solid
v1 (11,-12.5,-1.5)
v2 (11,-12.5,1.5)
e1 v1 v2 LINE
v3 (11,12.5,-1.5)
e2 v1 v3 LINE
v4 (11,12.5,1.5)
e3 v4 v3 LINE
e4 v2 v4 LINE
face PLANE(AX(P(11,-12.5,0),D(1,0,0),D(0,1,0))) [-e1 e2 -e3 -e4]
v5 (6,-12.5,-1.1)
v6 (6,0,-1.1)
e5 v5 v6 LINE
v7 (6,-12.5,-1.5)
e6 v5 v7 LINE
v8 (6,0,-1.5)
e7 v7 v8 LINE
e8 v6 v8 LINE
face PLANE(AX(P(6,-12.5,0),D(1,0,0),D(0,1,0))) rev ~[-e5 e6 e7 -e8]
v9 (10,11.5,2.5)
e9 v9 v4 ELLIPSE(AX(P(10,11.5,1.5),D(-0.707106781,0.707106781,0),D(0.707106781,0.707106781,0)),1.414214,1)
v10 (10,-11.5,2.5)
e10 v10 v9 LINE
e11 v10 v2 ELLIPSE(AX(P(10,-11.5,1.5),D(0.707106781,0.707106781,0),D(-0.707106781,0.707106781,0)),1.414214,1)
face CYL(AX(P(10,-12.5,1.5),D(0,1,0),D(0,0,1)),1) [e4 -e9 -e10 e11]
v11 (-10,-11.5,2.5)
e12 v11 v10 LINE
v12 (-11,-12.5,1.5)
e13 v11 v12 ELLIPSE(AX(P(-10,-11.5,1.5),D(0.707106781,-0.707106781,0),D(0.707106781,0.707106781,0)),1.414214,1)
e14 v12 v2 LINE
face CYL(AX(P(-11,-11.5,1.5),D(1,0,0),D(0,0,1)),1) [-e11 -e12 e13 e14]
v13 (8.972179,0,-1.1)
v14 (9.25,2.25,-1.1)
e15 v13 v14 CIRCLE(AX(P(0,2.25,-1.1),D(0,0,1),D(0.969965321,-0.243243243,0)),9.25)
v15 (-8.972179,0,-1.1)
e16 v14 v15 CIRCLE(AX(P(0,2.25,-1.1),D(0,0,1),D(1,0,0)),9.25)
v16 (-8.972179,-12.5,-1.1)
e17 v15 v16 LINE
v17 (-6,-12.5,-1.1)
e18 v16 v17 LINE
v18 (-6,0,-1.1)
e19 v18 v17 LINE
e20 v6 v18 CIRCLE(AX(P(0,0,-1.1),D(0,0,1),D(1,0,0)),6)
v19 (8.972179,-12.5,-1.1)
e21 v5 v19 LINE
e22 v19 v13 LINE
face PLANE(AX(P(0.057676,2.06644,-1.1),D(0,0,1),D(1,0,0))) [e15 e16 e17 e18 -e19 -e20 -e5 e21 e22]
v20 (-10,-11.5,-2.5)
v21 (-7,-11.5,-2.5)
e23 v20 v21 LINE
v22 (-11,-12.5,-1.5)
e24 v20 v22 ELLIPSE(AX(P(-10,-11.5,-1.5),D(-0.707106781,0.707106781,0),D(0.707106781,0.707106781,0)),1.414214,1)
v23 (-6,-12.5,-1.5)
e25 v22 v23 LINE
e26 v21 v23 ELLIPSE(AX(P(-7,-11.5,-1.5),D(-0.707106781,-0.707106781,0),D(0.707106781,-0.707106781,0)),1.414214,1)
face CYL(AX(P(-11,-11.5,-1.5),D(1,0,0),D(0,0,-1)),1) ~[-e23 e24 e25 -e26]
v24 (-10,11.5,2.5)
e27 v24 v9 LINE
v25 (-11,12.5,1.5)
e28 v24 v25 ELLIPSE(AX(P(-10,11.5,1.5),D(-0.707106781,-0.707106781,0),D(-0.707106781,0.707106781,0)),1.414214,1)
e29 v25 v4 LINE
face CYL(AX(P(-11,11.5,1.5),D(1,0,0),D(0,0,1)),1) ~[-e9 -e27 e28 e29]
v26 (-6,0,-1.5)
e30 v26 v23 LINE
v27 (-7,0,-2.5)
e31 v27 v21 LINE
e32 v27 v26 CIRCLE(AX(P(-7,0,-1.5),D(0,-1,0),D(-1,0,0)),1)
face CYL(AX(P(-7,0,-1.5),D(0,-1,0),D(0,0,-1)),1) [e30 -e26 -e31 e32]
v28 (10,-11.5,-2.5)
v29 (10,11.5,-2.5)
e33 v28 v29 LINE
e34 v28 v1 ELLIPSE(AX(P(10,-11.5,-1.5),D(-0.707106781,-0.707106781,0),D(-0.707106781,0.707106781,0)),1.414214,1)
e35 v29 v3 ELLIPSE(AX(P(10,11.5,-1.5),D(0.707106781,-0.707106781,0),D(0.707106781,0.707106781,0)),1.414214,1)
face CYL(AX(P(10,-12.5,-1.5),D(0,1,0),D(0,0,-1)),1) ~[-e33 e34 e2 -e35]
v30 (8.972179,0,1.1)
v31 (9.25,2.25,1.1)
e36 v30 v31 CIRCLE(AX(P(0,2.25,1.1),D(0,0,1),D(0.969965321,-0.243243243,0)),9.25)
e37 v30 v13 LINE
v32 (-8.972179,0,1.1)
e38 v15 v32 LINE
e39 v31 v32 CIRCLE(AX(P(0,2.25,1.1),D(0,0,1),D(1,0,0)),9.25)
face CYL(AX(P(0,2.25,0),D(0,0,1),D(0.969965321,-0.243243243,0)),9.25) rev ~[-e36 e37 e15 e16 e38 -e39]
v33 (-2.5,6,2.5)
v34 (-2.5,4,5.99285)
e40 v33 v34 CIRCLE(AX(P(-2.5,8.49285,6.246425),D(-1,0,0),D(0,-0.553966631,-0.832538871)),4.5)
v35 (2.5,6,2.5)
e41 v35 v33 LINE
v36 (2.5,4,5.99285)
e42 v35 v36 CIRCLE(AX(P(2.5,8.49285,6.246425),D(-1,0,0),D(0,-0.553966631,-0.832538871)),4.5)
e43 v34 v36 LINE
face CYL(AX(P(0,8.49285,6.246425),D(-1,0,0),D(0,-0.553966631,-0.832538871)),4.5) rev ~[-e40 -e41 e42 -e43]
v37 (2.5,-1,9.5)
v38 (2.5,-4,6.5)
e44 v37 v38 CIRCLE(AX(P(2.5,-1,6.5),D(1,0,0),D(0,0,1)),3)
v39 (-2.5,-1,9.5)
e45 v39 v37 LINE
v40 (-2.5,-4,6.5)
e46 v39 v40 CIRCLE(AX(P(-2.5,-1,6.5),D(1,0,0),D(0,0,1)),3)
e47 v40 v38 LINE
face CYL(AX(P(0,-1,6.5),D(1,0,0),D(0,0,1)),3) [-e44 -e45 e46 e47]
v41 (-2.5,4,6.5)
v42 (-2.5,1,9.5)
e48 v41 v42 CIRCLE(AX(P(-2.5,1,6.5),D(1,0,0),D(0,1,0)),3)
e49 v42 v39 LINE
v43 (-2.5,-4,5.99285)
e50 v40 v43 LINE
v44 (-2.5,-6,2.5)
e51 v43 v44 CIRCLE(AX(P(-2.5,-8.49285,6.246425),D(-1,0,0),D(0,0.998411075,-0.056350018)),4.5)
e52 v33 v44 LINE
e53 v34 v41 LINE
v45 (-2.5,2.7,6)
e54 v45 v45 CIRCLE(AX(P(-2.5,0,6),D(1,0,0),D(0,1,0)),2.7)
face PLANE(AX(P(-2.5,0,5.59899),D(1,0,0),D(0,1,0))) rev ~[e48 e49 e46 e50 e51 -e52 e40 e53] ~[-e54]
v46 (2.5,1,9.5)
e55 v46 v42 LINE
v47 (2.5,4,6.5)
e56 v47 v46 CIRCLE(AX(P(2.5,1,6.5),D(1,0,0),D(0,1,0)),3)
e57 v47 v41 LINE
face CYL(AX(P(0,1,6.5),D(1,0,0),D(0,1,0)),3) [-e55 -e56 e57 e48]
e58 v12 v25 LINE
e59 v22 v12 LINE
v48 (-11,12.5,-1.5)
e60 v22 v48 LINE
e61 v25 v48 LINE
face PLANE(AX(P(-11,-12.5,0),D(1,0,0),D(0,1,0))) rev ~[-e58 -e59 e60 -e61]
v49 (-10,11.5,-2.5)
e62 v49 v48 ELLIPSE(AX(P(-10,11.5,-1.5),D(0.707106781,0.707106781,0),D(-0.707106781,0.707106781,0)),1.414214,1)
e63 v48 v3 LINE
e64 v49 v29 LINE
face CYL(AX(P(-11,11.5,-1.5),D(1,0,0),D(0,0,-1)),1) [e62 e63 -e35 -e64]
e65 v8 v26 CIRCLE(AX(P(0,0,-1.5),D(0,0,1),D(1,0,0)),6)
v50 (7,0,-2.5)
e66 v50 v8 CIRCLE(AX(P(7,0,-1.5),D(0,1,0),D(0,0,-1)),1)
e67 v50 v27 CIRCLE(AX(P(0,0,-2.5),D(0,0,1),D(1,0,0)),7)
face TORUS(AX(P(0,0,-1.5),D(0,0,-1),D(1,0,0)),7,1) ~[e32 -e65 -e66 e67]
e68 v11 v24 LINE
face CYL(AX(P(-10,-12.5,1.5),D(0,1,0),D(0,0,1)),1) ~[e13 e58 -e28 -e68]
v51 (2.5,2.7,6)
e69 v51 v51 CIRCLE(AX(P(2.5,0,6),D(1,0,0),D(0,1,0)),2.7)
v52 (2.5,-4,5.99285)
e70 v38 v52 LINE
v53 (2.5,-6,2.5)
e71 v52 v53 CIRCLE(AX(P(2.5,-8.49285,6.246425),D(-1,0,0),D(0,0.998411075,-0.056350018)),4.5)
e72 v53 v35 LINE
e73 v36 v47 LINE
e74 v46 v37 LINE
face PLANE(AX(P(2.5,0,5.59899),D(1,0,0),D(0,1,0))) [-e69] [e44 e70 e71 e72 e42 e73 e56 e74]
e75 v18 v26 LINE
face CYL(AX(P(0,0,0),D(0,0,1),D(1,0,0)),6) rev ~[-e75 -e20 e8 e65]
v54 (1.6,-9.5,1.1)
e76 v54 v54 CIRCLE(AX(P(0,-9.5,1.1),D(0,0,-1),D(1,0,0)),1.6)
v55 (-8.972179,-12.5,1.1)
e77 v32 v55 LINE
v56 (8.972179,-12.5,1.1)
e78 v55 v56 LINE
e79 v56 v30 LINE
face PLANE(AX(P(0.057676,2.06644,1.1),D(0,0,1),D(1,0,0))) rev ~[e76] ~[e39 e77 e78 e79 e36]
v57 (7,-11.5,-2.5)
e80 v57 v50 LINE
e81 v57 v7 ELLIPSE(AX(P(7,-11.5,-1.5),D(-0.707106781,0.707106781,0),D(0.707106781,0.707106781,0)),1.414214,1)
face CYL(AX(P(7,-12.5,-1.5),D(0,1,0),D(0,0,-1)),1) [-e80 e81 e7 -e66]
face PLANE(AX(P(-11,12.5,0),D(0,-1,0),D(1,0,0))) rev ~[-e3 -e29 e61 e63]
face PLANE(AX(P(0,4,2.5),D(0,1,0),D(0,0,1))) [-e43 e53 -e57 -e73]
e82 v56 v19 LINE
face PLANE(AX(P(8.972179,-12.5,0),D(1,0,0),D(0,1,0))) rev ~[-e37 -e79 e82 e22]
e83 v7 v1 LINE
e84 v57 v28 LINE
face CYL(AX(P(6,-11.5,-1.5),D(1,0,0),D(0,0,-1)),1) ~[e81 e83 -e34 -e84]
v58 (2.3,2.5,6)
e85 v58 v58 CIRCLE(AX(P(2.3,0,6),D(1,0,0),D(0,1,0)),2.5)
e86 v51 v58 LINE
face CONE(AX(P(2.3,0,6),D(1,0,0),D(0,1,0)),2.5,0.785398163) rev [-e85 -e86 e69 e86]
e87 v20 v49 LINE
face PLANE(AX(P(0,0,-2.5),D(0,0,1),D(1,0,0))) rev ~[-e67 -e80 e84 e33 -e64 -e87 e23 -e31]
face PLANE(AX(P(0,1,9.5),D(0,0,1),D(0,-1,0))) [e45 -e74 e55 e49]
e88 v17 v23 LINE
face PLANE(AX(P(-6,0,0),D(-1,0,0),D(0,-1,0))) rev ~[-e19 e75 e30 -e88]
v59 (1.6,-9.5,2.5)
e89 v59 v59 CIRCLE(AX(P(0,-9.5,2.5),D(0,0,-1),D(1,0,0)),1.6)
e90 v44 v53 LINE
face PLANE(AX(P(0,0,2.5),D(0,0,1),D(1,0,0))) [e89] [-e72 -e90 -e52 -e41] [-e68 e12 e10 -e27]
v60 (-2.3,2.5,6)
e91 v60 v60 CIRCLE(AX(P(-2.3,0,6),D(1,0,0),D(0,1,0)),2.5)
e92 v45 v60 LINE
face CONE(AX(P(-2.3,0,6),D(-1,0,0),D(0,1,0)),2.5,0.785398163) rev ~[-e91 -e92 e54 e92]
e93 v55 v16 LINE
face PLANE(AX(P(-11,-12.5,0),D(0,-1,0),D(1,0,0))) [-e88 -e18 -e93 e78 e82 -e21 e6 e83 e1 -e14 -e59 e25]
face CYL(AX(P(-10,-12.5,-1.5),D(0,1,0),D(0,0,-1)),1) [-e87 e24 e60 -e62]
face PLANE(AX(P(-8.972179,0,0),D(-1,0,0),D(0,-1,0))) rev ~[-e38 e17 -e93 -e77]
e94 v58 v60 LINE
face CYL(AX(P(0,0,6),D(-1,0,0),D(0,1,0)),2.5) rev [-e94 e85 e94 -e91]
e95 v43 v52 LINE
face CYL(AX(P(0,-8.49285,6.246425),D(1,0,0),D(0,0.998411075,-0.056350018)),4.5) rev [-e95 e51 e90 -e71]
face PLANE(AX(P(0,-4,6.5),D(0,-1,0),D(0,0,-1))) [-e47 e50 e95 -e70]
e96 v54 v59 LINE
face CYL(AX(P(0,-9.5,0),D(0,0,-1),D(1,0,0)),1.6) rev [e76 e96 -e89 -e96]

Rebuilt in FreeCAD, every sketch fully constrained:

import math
import FreeCAD as App
import Part
import Sketcher

V = App.Vector


def edges_at(feature, points):
    """Names of the edges that pass closest to the given points."""
    edges = feature.Shape.Edges
    near = lambda p: min(range(len(edges)), key=lambda i: edges[i].distToShape(Part.Vertex(*p))[0])
    return sorted({f"Edge{near(p) + 1}" for p in points})

doc = App.newDocument("Part")
body = doc.addObject("PartDesign::Body", "Body")

# Sketch on XY plane
sketch1 = body.newObject("Sketcher::SketchObject", "Sketch")
sketch1.AttachmentSupport = (doc.getObject("XY_Plane"), [""])
sketch1.MapMode = "FlatFace"
sketch1.addGeometry([
    Part.LineSegment(V(-11, 12, 0), V(-11, -12, 0)),
    Part.LineSegment(V(-11, -12, 0), V(11, -12, 0)),
    Part.LineSegment(V(11, -12, 0), V(11, 12, 0)),
    Part.LineSegment(V(11, 12, 0), V(-11, 12, 0)),
], False)
sketch1.addConstraint([
    Sketcher.Constraint("Coincident", 0, 2, 1, 1),
    Sketcher.Constraint("Coincident", 1, 2, 2, 1),
    Sketcher.Constraint("Coincident", 2, 2, 3, 1),
    Sketcher.Constraint("Coincident", 3, 2, 0, 1),
    Sketcher.Constraint("Vertical", 0),
    Sketcher.Constraint("Horizontal", 1),
    Sketcher.Constraint("Vertical", 2),
    Sketcher.Constraint("Horizontal", 3),
    Sketcher.Constraint("Symmetric", 0, 2, 2, 2, -1, 1),
    Sketcher.Constraint("DistanceX", 1, 1, 1, 2, 22.0),
    Sketcher.Constraint("DistanceY", 0, 2, 0, 1, 25.0),
])
pad1 = body.newObject("PartDesign::Pad", "Pad")
pad1.Profile = sketch1
pad1.Length = 5
pad1.Midplane = True

# Sketch on XY plane
sketch2 = body.newObject("Sketcher::SketchObject", "Sketch001")
sketch2.AttachmentSupport = (doc.getObject("XY_Plane"), [""])
sketch2.MapMode = "FlatFace"
sketch2.addGeometry([
    Part.ArcOfCircle(Part.Circle(V(0, 2.3, 0), V(0, 0, 1), 9.3), math.radians(-14.08), math.radians(0)),  # 0
    Part.ArcOfCircle(Part.Circle(V(0, 2.2, 0), V(0, 0, 1), 9.2), math.radians(0), math.radians(194)),  # 1
    Part.LineSegment(V(-9, 0, 0), V(-9, -12.5, 0)),  # 2
    Part.LineSegment(V(-9, -12.5, 0), V(9, -12.5, 0)),  # 3
    Part.LineSegment(V(9, -12.5, 0), V(9, 0, 0)),  # 4
], False)
sketch2.addConstraint([
    Sketcher.Constraint("Tangent", 0, 2, 1, 1),
    Sketcher.Constraint("Coincident", 1, 2, 2, 1),
    Sketcher.Constraint("Coincident", 2, 2, 3, 1),
    Sketcher.Constraint("Coincident", 3, 2, 4, 1),
    Sketcher.Constraint("Coincident", 4, 2, 0, 1),
    Sketcher.Constraint("Vertical", 2),
    Sketcher.Constraint("Horizontal", 3),
    Sketcher.Constraint("Vertical", 4),
    Sketcher.Constraint("Equal", 0, 1),
    Sketcher.Constraint("Symmetric", 1, 2, 4, 2, -1, 1),
    Sketcher.Constraint("PointOnObject", 0, 3, -2),
    Sketcher.Constraint("Horizontal", 1, 3, 0, 2),
    Sketcher.Constraint("Radius", 0, 9.25),
    Sketcher.Constraint("DistanceY", 2, 2, 2, 1, 12.5),
    Sketcher.Constraint("DistanceY", -1, 1, 0, 3, 2.25),
])
pocket1 = body.newObject("PartDesign::Pocket", "Pocket")
pocket1.Profile = sketch2
pocket1.Length = 2.2
pocket1.Midplane = True

# Sketch on XY plane
sketch3 = body.newObject("Sketcher::SketchObject", "Sketch002")
sketch3.AttachmentSupport = (doc.getObject("XY_Plane"), [""])
sketch3.MapMode = "FlatFace"
sketch3.addGeometry([
    Part.ArcOfCircle(Part.Circle(V(0, 0, 0), V(0, 0, 1), 6), math.radians(0), math.radians(180)),
    Part.LineSegment(V(-6, 0, 0), V(-6, -12, 0)),
    Part.LineSegment(V(-6, -12, 0), V(6, -12, 0)),
    Part.LineSegment(V(6, -12, 0), V(6, 0, 0)),
], False)
sketch3.addConstraint([
    Sketcher.Constraint("Tangent", 0, 2, 1, 1),
    Sketcher.Constraint("Coincident", 1, 2, 2, 1),
    Sketcher.Constraint("Coincident", 2, 2, 3, 1),
    Sketcher.Constraint("Tangent", 3, 2, 0, 1),
    Sketcher.Constraint("Vertical", 1),
    Sketcher.Constraint("Horizontal", 2),
    Sketcher.Constraint("Vertical", 3),
    Sketcher.Constraint("Coincident", 0, 3, -1, 1),
    Sketcher.Constraint("Radius", 0, 6.0),
    Sketcher.Constraint("DistanceY", 1, 2, 1, 1, 12.5),
])
pocket2 = body.newObject("PartDesign::Pocket", "Pocket001")
pocket2.Profile = sketch3
pocket2.Length = 25

# Sketch on XY plane
sketch4 = body.newObject("Sketcher::SketchObject", "Sketch003")
sketch4.AttachmentSupport = (doc.getObject("XY_Plane"), [""])
sketch4.MapMode = "FlatFace"
sketch4.addGeometry(Part.Circle(V(0, -9.5, 0), V(0, 0, 1), 1.6), False)
sketch4.addConstraint([
    Sketcher.Constraint("PointOnObject", 0, 3, -2),
    Sketcher.Constraint("Diameter", 0, 3.2),
    Sketcher.Constraint("DistanceY", 0, 3, -1, 1, 9.5),
])
pocket3 = body.newObject("PartDesign::Pocket", "Pocket002")
pocket3.Profile = sketch4
pocket3.Length = 29.4
pocket3.Reversed = True

# Sketch on YZ plane
sketch5 = body.newObject("Sketcher::SketchObject", "Sketch004")
sketch5.AttachmentSupport = (doc.getObject("YZ_Plane"), [""])
sketch5.MapMode = "FlatFace"
sketch5.addGeometry([
    Part.LineSegment(V(1, 9.5, 0), V(-1, 9.5, 0)),  # 0
    Part.ArcOfCircle(Part.Circle(V(-1, 6.5, 0), V(0, 0, 1), 3), math.radians(90), math.radians(180)),  # 1
    Part.LineSegment(V(-4, 6.5, 0), V(-4, 2.5, 0)),  # 2
    Part.LineSegment(V(-4, 2.5, 0), V(4, 2.5, 0)),  # 3
    Part.LineSegment(V(4, 2.5, 0), V(4, 6.5, 0)),  # 4
    Part.ArcOfCircle(Part.Circle(V(1, 6.5, 0), V(0, 0, 1), 3), math.radians(0), math.radians(90)),  # 5
    Part.Circle(V(0, 6, 0), V(0, 0, 1), 2.5),  # 6
], False)
sketch5.addConstraint([
    Sketcher.Constraint("Tangent", 0, 2, 1, 1),
    Sketcher.Constraint("Tangent", 1, 2, 2, 1),
    Sketcher.Constraint("Coincident", 2, 2, 3, 1),
    Sketcher.Constraint("Coincident", 3, 2, 4, 1),
    Sketcher.Constraint("Tangent", 4, 2, 5, 1),
    Sketcher.Constraint("Tangent", 5, 2, 0, 1),
    Sketcher.Constraint("Horizontal", 0),
    Sketcher.Constraint("Vertical", 2),
    Sketcher.Constraint("Horizontal", 3),
    Sketcher.Constraint("Vertical", 4),
    Sketcher.Constraint("Equal", 1, 5),
    Sketcher.Constraint("PointOnObject", 6, 3, -2),
    Sketcher.Constraint("Diameter", 6, 5.0),
    Sketcher.Constraint("Radius", 1, 3.0),
    Sketcher.Constraint("DistanceX", 0, 2, 0, 1, 2.0),
    Sketcher.Constraint("DistanceY", 2, 2, 2, 1, 4.0),
    Sketcher.Constraint("DistanceX", 1, 3, -1, 1, 1.0),
    Sketcher.Constraint("DistanceY", -1, 1, 6, 3, 6.0),
    Sketcher.Constraint("DistanceY", -1, 1, 1, 3, 6.5),
])
pad2 = body.newObject("PartDesign::Pad", "Pad001")
pad2.Profile = sketch5
pad2.Length = 5
pad2.Midplane = True

# Sketch on YZ plane
sketch6 = body.newObject("Sketcher::SketchObject", "Sketch005")
sketch6.AttachmentSupport = (doc.getObject("YZ_Plane"), [""])
sketch6.MapMode = "FlatFace"
sketch6.addGeometry([
    Part.ArcOfCircle(Part.Circle(V(8.5, 6.2, 0), V(0, 0, 1), 4.5), math.radians(176.77), math.radians(183.23)),  # 0
    Part.LineSegment(V(4, 6, 0), V(4, 6.5, 0)),  # 1
    Part.LineSegment(V(4, 2.5, 0), V(6, 2.5, 0)),  # 2
    Part.ArcOfCircle(Part.Circle(V(8.5, 6.2, 0), V(0, 0, 1), 4.5), math.radians(-177), math.radians(-124)),  # 3
    Part.LineSegment(V(4, 6, 0), V(4, 2.5, 0)),  # 4
    Part.ArcOfCircle(Part.Circle(V(-8.5, 6.2, 0), V(0, 0, 1), 4.5), math.radians(-56), math.radians(-3)),  # 5
    Part.LineSegment(V(-6, 2.5, 0), V(-4, 2.5, 0)),  # 6
    Part.LineSegment(V(-4, 2.5, 0), V(-4, 6, 0)),  # 7
    Part.LineSegment(V(-4, 6.5, 0), V(-4, 6, 0)),  # 8
    Part.ArcOfCircle(Part.Circle(V(-8.5, 6.2, 0), V(0, 0, 1), 4.5), math.radians(-3.23), math.radians(3.23)),  # 9
], False)
sketch6.addConstraint([
    Sketcher.Constraint("Coincident", 0, 1, 1, 2),
    Sketcher.Constraint("Coincident", 1, 1, 0, 2),
    Sketcher.Constraint("Coincident", 2, 2, 3, 2),
    Sketcher.Constraint("Coincident", 3, 1, 4, 1),
    Sketcher.Constraint("Coincident", 4, 2, 2, 1),
    Sketcher.Constraint("Coincident", 5, 1, 6, 1),
    Sketcher.Constraint("Coincident", 6, 2, 7, 1),
    Sketcher.Constraint("Coincident", 7, 2, 5, 2),
    Sketcher.Constraint("Coincident", 8, 1, 9, 2),
    Sketcher.Constraint("Coincident", 9, 1, 8, 2),
    Sketcher.Constraint("Vertical", 1),
    Sketcher.Constraint("Horizontal", 2),
    Sketcher.Constraint("Vertical", 4),
    Sketcher.Constraint("Horizontal", 6),
    Sketcher.Constraint("Vertical", 7),
    Sketcher.Constraint("Vertical", 8),
    Sketcher.Constraint("Coincident", 3, 3, 0, 3),
    Sketcher.Constraint("Coincident", 9, 3, 5, 3),
    Sketcher.Constraint("Coincident", 3, 1, 1, 1),
    Sketcher.Constraint("Coincident", 9, 1, 7, 2),
    Sketcher.Constraint("Equal", 3, 5),
    Sketcher.Constraint("Symmetric", 0, 3, 5, 3, -2),
    Sketcher.Constraint("Symmetric", 4, 2, 6, 2, -2),
    Sketcher.Constraint("Radius", 0, 4.5),
    Sketcher.Constraint("DistanceX", 2, 1, 2, 2, 2.0),
    Sketcher.Constraint("DistanceX", -1, 1, 0, 1, 4.0),
    Sketcher.Constraint("DistanceY", 2, 2, 0, 1, 4.0),
    Sketcher.Constraint("DistanceY", -1, 1, 0, 1, 6.5),
])
pad3 = body.newObject("PartDesign::Pad", "Pad002")
pad3.Profile = sketch6
pad3.Length = 5
pad3.Midplane = True
doc.recompute()

fillet = body.newObject("PartDesign::Fillet", "Fillet")
fillet.Base = (pad3, edges_at(pad3, [
    (-11, 0, -2.5),
    (-11, 0, 2.5),
    (11, 0, 2.5),
    (11, 0, -2.5),
    (0, -12.5, 2.5),
    (0, 12.5, 2.5),
    (0, 12.5, -2.5),
    (8.5, -12.5, -2.5),
    (-8.5, -12.5, -2.5),
    (6, -6.25, -2.5),
]))
fillet.Radius = 1
doc.recompute()

chamfer = body.newObject("PartDesign::Chamfer", "Chamfer")
chamfer.Base = (fillet, edges_at(fillet, [(2.5, -2.5, 6), (-2.5, -2.5, 6)]))
chamfer.Size = 0.2

doc.recompute()
